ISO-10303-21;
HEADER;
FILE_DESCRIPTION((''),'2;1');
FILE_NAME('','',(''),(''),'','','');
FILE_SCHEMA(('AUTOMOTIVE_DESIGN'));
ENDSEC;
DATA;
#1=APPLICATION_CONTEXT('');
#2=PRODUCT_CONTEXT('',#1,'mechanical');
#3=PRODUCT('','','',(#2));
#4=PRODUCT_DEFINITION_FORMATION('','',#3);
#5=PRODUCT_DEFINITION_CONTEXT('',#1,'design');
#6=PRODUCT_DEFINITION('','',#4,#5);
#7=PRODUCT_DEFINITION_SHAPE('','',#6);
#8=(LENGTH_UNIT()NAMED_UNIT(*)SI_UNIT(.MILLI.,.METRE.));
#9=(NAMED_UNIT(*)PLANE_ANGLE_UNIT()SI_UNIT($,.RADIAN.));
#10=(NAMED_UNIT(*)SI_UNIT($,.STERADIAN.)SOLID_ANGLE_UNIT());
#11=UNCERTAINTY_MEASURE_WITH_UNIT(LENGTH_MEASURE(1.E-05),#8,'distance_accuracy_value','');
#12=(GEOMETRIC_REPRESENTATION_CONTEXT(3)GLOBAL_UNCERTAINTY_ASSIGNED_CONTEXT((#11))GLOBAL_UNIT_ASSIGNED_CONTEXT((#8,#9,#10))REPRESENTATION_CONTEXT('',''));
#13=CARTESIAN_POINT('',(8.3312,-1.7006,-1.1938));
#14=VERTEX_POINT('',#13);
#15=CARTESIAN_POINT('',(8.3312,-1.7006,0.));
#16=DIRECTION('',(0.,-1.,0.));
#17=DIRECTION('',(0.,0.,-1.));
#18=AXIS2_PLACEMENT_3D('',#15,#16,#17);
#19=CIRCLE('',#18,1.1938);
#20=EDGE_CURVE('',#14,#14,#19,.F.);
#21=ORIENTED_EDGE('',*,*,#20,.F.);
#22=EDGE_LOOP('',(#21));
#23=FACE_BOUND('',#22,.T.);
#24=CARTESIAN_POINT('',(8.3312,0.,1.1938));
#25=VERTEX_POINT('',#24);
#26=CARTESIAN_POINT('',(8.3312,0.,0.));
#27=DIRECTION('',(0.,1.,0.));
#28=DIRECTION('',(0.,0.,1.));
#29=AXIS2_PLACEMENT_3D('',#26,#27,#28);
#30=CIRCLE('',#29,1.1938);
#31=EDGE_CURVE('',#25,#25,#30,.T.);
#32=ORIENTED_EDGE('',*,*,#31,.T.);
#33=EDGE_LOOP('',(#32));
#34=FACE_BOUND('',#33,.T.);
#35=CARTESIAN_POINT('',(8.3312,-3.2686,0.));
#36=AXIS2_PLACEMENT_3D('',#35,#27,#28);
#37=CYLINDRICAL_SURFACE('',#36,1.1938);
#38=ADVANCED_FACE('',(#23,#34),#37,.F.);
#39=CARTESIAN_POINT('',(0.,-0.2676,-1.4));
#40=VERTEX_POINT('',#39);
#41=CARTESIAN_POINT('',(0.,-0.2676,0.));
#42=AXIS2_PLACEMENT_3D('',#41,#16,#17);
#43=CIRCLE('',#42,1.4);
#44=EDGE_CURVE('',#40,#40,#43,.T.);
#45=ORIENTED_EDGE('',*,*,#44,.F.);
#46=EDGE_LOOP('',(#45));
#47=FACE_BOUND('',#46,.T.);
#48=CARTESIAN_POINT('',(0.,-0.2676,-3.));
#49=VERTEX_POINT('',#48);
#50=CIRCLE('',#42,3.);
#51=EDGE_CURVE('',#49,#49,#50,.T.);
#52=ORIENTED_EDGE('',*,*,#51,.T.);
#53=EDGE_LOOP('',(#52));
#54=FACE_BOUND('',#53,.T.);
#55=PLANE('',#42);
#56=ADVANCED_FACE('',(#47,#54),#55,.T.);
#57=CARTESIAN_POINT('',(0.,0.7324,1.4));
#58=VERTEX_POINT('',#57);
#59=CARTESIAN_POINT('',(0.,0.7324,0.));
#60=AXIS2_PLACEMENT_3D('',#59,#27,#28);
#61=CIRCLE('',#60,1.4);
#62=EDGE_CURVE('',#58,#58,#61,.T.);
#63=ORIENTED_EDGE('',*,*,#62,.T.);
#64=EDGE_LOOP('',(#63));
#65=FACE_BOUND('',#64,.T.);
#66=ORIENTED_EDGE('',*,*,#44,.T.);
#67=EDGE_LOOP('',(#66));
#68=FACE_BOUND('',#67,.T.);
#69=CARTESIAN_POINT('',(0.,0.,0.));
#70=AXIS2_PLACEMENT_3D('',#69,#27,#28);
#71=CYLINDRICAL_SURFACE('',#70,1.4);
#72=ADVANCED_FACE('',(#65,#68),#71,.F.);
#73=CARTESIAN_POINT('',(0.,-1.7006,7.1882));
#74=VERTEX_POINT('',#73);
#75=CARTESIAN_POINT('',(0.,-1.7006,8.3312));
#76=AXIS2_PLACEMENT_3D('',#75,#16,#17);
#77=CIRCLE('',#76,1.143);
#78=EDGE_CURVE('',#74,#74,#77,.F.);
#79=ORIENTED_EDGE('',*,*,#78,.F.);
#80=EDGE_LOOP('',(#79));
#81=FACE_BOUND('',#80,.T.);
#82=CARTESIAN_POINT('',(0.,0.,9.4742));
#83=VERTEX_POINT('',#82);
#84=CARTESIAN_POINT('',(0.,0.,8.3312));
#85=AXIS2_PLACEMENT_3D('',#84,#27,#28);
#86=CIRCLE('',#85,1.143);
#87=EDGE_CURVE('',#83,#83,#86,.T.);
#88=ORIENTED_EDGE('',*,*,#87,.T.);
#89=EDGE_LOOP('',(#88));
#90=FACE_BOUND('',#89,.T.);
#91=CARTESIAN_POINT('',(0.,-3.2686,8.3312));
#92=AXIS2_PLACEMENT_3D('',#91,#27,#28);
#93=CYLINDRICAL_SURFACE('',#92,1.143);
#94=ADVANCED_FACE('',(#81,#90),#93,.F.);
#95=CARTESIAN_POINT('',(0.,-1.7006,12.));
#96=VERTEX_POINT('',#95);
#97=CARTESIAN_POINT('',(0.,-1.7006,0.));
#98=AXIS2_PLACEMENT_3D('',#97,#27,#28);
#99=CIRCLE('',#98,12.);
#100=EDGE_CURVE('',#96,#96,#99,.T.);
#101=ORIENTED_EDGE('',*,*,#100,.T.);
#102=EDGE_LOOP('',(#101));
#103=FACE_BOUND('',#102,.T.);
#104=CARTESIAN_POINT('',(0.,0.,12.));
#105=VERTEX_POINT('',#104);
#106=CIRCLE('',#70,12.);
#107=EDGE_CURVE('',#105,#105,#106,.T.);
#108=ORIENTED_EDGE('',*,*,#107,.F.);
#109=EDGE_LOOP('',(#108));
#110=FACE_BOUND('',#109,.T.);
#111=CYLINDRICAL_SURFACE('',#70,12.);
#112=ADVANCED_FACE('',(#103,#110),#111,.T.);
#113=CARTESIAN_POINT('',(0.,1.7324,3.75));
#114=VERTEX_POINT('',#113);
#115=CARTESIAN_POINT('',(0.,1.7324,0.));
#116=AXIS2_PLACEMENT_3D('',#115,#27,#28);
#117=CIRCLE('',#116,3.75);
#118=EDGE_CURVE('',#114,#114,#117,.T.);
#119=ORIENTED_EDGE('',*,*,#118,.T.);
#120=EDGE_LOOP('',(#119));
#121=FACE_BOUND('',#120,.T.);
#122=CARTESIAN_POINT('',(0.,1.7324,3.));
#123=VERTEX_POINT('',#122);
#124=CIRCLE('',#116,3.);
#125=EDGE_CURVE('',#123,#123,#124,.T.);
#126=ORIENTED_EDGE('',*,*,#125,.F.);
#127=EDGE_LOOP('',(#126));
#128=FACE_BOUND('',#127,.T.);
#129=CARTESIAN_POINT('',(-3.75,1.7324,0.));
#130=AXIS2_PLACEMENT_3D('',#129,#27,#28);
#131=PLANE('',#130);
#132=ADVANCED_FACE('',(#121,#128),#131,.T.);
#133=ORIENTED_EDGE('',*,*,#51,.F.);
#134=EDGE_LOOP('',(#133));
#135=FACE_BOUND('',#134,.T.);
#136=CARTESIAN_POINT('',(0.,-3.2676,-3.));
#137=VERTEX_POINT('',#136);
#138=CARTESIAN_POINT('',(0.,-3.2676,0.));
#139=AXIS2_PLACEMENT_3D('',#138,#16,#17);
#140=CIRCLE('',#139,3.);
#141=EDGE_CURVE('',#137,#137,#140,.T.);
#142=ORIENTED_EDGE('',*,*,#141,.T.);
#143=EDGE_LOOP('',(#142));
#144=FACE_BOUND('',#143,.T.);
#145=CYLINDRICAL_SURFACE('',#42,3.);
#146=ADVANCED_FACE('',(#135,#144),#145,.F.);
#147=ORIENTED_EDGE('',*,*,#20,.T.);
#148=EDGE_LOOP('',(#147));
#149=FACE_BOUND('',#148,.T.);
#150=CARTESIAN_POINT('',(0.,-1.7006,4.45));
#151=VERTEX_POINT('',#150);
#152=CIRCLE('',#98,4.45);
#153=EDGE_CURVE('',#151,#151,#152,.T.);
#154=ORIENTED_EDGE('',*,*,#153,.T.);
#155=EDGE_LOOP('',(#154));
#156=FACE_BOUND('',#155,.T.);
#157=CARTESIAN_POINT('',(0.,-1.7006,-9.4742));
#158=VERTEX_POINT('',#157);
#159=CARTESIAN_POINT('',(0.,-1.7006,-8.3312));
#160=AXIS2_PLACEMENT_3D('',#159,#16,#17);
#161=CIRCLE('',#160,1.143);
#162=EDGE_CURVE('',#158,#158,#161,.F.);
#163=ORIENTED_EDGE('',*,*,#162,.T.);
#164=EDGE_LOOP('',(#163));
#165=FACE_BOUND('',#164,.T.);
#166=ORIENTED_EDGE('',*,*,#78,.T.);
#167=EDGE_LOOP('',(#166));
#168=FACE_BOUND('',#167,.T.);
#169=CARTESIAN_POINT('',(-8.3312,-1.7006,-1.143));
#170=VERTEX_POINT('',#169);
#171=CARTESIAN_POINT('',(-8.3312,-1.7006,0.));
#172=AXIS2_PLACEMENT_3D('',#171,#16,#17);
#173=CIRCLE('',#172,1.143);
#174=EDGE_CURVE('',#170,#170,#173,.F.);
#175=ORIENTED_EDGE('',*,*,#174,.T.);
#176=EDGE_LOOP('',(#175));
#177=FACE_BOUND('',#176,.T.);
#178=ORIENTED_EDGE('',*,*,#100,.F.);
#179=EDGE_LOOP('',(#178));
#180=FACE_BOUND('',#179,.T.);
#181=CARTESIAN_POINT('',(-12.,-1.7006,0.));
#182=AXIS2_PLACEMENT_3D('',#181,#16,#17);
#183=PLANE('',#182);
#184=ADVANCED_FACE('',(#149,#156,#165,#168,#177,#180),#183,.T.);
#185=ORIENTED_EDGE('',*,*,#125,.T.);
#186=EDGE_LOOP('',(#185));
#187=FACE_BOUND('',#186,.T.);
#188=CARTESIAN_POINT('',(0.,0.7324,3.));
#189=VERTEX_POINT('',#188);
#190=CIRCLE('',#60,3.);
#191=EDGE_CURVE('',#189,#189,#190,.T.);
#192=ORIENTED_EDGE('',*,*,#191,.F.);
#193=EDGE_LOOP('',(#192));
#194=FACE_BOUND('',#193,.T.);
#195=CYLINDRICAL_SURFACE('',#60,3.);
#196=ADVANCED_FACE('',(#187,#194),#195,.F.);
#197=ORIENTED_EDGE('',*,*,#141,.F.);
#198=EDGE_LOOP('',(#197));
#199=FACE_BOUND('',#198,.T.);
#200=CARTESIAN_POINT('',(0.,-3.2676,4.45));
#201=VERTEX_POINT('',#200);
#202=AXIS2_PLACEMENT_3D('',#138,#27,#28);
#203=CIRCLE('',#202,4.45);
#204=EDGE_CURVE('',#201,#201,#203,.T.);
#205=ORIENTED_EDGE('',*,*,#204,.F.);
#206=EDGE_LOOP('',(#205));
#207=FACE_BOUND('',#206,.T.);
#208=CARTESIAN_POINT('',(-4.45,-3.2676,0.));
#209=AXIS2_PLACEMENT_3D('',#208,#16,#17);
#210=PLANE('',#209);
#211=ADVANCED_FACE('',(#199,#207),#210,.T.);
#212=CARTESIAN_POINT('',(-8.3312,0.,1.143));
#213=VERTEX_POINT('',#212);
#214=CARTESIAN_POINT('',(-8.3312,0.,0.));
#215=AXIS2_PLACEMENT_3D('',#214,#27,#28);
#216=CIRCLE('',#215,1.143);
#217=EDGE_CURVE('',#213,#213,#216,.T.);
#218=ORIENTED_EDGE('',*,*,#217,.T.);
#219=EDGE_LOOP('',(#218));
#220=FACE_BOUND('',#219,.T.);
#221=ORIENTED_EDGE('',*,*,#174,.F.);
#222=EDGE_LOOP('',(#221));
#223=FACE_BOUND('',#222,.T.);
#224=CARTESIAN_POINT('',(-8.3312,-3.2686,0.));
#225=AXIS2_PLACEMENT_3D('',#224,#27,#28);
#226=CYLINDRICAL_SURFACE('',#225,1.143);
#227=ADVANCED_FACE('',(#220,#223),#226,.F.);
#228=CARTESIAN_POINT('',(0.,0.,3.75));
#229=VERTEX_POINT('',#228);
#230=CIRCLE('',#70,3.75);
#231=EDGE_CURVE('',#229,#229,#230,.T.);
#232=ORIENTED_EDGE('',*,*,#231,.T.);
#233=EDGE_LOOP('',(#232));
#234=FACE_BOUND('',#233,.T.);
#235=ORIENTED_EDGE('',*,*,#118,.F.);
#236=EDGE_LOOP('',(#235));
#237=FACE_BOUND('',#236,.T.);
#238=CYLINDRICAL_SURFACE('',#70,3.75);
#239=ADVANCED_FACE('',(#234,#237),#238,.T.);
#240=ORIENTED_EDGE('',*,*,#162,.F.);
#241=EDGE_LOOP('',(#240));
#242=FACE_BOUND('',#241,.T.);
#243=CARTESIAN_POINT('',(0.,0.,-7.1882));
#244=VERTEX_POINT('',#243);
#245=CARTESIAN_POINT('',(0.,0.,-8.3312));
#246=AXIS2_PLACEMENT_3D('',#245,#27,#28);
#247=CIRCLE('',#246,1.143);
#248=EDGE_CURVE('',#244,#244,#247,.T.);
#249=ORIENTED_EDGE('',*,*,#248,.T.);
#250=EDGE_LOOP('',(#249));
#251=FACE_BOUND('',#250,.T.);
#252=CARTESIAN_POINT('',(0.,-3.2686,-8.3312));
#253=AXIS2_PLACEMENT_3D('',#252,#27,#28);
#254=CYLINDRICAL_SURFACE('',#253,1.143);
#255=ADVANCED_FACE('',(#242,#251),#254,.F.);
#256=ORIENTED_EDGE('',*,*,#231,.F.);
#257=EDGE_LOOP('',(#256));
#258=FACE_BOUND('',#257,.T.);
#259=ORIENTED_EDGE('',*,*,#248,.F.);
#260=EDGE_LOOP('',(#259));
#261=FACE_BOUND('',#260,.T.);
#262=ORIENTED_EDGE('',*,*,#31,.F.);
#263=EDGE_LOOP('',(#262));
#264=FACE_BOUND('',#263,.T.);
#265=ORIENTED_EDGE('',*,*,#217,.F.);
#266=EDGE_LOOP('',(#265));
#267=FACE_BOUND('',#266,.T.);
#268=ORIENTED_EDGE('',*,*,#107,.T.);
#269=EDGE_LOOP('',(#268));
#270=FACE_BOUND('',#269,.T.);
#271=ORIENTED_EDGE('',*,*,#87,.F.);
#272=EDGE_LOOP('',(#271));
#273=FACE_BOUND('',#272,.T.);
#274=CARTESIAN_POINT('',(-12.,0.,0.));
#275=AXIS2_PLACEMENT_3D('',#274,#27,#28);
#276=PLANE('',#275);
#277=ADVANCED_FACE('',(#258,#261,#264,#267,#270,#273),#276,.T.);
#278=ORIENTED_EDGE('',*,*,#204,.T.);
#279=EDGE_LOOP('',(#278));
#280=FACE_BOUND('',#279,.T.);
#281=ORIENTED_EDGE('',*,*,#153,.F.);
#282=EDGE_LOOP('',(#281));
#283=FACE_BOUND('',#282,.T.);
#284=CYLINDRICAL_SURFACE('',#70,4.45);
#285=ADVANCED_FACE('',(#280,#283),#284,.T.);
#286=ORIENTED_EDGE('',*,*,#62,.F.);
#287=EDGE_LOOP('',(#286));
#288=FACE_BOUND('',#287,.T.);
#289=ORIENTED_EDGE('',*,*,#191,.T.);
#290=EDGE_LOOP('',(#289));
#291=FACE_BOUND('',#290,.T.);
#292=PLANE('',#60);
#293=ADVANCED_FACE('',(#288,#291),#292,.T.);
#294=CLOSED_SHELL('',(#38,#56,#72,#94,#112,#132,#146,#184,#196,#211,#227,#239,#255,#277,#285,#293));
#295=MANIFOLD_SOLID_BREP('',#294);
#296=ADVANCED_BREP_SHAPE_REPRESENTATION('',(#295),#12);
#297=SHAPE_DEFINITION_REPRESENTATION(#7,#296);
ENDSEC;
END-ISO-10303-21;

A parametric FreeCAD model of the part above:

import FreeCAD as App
import Part
import Sketcher

V = App.Vector


def add_polygon(sketch, points):
    """Adds a closed chain of lines whose ends are joined by coincident constraints."""
    first, n = sketch.GeometryCount, len(points)
    for a, b in zip(points, points[1:] + points[:1]):
        sketch.addGeometry(Part.LineSegment(App.Vector(*a, 0), App.Vector(*b, 0)), False)
    for i in range(n):
        sketch.addConstraint(Sketcher.Constraint("Coincident", first + i, 2, first + (i + 1) % n, 1))

doc = App.newDocument("Part")
body = doc.addObject("PartDesign::Body", "Body")

# Sketch on XY plane
sketch1 = doc.addObject("Sketcher::SketchObject", "Sketch")
body.addObject(sketch1)
sketch1.AttachmentSupport = (doc.XY_Plane, [""])
sketch1.MapMode = "FlatFace"
add_polygon(sketch1, [(-3.75, 0), (-12, 0), (-12, -1.7006), (-4.45, -1.7006), (-4.45, -3.2676), (-1.4, -3.2676), (-1.4, 1.7324), (-3.75, 1.7324)])  # lines 0-7
sketch1.addConstraint([
    Sketcher.Constraint("Horizontal", 0),
    Sketcher.Constraint("Vertical", 1),
    Sketcher.Constraint("Horizontal", 2),
    Sketcher.Constraint("Vertical", 3),
    Sketcher.Constraint("Horizontal", 4),
    Sketcher.Constraint("Vertical", 5),
    Sketcher.Constraint("Horizontal", 6),
    Sketcher.Constraint("Vertical", 7),
    Sketcher.Constraint("PointOnObject", 0, 2, -1),
    Sketcher.Constraint("DistanceY", 5, 1, 5, 2, 5.0),
    Sketcher.Constraint("DistanceX", 0, 2, -1, 1, 12.0),
    Sketcher.Constraint("DistanceX", 0, 2, 0, 1, 8.25),
    Sketcher.Constraint("DistanceX", 2, 1, 2, 2, 7.55),
    Sketcher.Constraint("DistanceX", 4, 1, 4, 2, 3.05),
    Sketcher.Constraint("DistanceY", 3, 2, 3, 1, 1.567),
    Sketcher.Constraint("DistanceY", 1, 2, 1, 1, 1.7006),
])
revolution = doc.addObject("PartDesign::Revolution", "Revolution")
body.addObject(revolution)
revolution.Profile = sketch1
revolution.ReferenceAxis = (sketch1, ["V_Axis"])
revolution.Angle = 360

# Sketch on XZ plane
sketch2 = doc.addObject("Sketcher::SketchObject", "Sketch001")
body.addObject(sketch2)
sketch2.AttachmentSupport = (doc.XZ_Plane, [""])
sketch2.MapMode = "FlatFace"
sketch2.AttachmentOffset = App.Placement(V(0, 0, -1.7324), App.Rotation())
sketch2.addGeometry(Part.Circle(V(0, 0, 0), V(0, 0, 1), 3), False)
sketch2.addConstraint([
    Sketcher.Constraint("Coincident", 0, 3, -1, 1),
    Sketcher.Constraint("Diameter", 0, 6.0),
])
pocket1 = doc.addObject("PartDesign::Pocket", "Pocket")
body.addObject(pocket1)
pocket1.Profile = sketch2
pocket1.Length = 1
pocket1.Reversed = True

# Sketch on XZ plane
sketch3 = doc.addObject("Sketcher::SketchObject", "Sketch002")
body.addObject(sketch3)
sketch3.AttachmentSupport = (doc.XZ_Plane, [""])
sketch3.MapMode = "FlatFace"
sketch3.AttachmentOffset = App.Placement(V(0, 0, 0.2676), App.Rotation())
sketch3.addGeometry(Part.Circle(V(0, 0, 0), V(0, 0, 1), 3), False)
sketch3.addConstraint([
    Sketcher.Constraint("Coincident", 0, 3, -1, 1),
    Sketcher.Constraint("Diameter", 0, 6.0),
])
pocket2 = doc.addObject("PartDesign::Pocket", "Pocket001")
body.addObject(pocket2)
pocket2.Profile = sketch3
pocket2.Length = 3
pocket2.Reversed = True

# Sketch on XZ plane
sketch4 = doc.addObject("Sketcher::SketchObject", "Sketch003")
body.addObject(sketch4)
sketch4.AttachmentSupport = (doc.XZ_Plane, [""])
sketch4.MapMode = "FlatFace"
sketch4.addGeometry(Part.Circle(V(0, -8.3312, 0), V(0, 0, 1), 1.143), False)
sketch4.addConstraint([
    Sketcher.Constraint("PointOnObject", 0, 3, -2),
    Sketcher.Constraint("Diameter", 0, 2.286),
    Sketcher.Constraint("DistanceY", 0, 3, -1, 1, 8.3312),
])
pocket3 = doc.addObject("PartDesign::Pocket", "Pocket002")
body.addObject(pocket3)
pocket3.Profile = sketch4
pocket3.Type = "UpToFirst"
pocket3.Reversed = True

# Sketch on XZ plane
sketch5 = doc.addObject("Sketcher::SketchObject", "Sketch004")
body.addObject(sketch5)
sketch5.AttachmentSupport = (doc.XZ_Plane, [""])
sketch5.MapMode = "FlatFace"
sketch5.addGeometry(Part.Circle(V(-8.3312, 0, 0), V(0, 0, 1), 1.143), False)
sketch5.addConstraint([
    Sketcher.Constraint("PointOnObject", 0, 3, -1),
    Sketcher.Constraint("Diameter", 0, 2.286),
    Sketcher.Constraint("DistanceX", 0, 3, -1, 1, 8.3312),
])
pocket4 = doc.addObject("PartDesign::Pocket", "Pocket003")
body.addObject(pocket4)
pocket4.Profile = sketch5
pocket4.Type = "UpToFirst"
pocket4.Reversed = True

# Sketch on XZ plane
sketch6 = doc.addObject("Sketcher::SketchObject", "Sketch005")
body.addObject(sketch6)
sketch6.AttachmentSupport = (doc.XZ_Plane, [""])
sketch6.MapMode = "FlatFace"
sketch6.addGeometry(Part.Circle(V(0, 8.3312, 0), V(0, 0, 1), 1.143), False)
sketch6.addConstraint([
    Sketcher.Constraint("PointOnObject", 0, 3, -2),
    Sketcher.Constraint("Diameter", 0, 2.286),
    Sketcher.Constraint("DistanceY", -1, 1, 0, 3, 8.3312),
])
pocket5 = doc.addObject("PartDesign::Pocket", "Pocket004")
body.addObject(pocket5)
pocket5.Profile = sketch6
pocket5.Type = "UpToFirst"
pocket5.Reversed = True

# Sketch on XZ plane
sketch7 = doc.addObject("Sketcher::SketchObject", "Sketch006")
body.addObject(sketch7)
sketch7.AttachmentSupport = (doc.XZ_Plane, [""])
sketch7.MapMode = "FlatFace"
sketch7.addGeometry(Part.Circle(V(8.3312, 0, 0), V(0, 0, 1), 1.1938), False)
sketch7.addConstraint([
    Sketcher.Constraint("PointOnObject", 0, 3, -1),
    Sketcher.Constraint("Diameter", 0, 2.3876),
    Sketcher.Constraint("DistanceX", -1, 1, 0, 3, 8.3312),
])
pocket6 = doc.addObject("PartDesign::Pocket", "Pocket005")
body.addObject(pocket6)
pocket6.Profile = sketch7
pocket6.Type = "UpToFirst"
pocket6.Reversed = True

doc.recompute()
